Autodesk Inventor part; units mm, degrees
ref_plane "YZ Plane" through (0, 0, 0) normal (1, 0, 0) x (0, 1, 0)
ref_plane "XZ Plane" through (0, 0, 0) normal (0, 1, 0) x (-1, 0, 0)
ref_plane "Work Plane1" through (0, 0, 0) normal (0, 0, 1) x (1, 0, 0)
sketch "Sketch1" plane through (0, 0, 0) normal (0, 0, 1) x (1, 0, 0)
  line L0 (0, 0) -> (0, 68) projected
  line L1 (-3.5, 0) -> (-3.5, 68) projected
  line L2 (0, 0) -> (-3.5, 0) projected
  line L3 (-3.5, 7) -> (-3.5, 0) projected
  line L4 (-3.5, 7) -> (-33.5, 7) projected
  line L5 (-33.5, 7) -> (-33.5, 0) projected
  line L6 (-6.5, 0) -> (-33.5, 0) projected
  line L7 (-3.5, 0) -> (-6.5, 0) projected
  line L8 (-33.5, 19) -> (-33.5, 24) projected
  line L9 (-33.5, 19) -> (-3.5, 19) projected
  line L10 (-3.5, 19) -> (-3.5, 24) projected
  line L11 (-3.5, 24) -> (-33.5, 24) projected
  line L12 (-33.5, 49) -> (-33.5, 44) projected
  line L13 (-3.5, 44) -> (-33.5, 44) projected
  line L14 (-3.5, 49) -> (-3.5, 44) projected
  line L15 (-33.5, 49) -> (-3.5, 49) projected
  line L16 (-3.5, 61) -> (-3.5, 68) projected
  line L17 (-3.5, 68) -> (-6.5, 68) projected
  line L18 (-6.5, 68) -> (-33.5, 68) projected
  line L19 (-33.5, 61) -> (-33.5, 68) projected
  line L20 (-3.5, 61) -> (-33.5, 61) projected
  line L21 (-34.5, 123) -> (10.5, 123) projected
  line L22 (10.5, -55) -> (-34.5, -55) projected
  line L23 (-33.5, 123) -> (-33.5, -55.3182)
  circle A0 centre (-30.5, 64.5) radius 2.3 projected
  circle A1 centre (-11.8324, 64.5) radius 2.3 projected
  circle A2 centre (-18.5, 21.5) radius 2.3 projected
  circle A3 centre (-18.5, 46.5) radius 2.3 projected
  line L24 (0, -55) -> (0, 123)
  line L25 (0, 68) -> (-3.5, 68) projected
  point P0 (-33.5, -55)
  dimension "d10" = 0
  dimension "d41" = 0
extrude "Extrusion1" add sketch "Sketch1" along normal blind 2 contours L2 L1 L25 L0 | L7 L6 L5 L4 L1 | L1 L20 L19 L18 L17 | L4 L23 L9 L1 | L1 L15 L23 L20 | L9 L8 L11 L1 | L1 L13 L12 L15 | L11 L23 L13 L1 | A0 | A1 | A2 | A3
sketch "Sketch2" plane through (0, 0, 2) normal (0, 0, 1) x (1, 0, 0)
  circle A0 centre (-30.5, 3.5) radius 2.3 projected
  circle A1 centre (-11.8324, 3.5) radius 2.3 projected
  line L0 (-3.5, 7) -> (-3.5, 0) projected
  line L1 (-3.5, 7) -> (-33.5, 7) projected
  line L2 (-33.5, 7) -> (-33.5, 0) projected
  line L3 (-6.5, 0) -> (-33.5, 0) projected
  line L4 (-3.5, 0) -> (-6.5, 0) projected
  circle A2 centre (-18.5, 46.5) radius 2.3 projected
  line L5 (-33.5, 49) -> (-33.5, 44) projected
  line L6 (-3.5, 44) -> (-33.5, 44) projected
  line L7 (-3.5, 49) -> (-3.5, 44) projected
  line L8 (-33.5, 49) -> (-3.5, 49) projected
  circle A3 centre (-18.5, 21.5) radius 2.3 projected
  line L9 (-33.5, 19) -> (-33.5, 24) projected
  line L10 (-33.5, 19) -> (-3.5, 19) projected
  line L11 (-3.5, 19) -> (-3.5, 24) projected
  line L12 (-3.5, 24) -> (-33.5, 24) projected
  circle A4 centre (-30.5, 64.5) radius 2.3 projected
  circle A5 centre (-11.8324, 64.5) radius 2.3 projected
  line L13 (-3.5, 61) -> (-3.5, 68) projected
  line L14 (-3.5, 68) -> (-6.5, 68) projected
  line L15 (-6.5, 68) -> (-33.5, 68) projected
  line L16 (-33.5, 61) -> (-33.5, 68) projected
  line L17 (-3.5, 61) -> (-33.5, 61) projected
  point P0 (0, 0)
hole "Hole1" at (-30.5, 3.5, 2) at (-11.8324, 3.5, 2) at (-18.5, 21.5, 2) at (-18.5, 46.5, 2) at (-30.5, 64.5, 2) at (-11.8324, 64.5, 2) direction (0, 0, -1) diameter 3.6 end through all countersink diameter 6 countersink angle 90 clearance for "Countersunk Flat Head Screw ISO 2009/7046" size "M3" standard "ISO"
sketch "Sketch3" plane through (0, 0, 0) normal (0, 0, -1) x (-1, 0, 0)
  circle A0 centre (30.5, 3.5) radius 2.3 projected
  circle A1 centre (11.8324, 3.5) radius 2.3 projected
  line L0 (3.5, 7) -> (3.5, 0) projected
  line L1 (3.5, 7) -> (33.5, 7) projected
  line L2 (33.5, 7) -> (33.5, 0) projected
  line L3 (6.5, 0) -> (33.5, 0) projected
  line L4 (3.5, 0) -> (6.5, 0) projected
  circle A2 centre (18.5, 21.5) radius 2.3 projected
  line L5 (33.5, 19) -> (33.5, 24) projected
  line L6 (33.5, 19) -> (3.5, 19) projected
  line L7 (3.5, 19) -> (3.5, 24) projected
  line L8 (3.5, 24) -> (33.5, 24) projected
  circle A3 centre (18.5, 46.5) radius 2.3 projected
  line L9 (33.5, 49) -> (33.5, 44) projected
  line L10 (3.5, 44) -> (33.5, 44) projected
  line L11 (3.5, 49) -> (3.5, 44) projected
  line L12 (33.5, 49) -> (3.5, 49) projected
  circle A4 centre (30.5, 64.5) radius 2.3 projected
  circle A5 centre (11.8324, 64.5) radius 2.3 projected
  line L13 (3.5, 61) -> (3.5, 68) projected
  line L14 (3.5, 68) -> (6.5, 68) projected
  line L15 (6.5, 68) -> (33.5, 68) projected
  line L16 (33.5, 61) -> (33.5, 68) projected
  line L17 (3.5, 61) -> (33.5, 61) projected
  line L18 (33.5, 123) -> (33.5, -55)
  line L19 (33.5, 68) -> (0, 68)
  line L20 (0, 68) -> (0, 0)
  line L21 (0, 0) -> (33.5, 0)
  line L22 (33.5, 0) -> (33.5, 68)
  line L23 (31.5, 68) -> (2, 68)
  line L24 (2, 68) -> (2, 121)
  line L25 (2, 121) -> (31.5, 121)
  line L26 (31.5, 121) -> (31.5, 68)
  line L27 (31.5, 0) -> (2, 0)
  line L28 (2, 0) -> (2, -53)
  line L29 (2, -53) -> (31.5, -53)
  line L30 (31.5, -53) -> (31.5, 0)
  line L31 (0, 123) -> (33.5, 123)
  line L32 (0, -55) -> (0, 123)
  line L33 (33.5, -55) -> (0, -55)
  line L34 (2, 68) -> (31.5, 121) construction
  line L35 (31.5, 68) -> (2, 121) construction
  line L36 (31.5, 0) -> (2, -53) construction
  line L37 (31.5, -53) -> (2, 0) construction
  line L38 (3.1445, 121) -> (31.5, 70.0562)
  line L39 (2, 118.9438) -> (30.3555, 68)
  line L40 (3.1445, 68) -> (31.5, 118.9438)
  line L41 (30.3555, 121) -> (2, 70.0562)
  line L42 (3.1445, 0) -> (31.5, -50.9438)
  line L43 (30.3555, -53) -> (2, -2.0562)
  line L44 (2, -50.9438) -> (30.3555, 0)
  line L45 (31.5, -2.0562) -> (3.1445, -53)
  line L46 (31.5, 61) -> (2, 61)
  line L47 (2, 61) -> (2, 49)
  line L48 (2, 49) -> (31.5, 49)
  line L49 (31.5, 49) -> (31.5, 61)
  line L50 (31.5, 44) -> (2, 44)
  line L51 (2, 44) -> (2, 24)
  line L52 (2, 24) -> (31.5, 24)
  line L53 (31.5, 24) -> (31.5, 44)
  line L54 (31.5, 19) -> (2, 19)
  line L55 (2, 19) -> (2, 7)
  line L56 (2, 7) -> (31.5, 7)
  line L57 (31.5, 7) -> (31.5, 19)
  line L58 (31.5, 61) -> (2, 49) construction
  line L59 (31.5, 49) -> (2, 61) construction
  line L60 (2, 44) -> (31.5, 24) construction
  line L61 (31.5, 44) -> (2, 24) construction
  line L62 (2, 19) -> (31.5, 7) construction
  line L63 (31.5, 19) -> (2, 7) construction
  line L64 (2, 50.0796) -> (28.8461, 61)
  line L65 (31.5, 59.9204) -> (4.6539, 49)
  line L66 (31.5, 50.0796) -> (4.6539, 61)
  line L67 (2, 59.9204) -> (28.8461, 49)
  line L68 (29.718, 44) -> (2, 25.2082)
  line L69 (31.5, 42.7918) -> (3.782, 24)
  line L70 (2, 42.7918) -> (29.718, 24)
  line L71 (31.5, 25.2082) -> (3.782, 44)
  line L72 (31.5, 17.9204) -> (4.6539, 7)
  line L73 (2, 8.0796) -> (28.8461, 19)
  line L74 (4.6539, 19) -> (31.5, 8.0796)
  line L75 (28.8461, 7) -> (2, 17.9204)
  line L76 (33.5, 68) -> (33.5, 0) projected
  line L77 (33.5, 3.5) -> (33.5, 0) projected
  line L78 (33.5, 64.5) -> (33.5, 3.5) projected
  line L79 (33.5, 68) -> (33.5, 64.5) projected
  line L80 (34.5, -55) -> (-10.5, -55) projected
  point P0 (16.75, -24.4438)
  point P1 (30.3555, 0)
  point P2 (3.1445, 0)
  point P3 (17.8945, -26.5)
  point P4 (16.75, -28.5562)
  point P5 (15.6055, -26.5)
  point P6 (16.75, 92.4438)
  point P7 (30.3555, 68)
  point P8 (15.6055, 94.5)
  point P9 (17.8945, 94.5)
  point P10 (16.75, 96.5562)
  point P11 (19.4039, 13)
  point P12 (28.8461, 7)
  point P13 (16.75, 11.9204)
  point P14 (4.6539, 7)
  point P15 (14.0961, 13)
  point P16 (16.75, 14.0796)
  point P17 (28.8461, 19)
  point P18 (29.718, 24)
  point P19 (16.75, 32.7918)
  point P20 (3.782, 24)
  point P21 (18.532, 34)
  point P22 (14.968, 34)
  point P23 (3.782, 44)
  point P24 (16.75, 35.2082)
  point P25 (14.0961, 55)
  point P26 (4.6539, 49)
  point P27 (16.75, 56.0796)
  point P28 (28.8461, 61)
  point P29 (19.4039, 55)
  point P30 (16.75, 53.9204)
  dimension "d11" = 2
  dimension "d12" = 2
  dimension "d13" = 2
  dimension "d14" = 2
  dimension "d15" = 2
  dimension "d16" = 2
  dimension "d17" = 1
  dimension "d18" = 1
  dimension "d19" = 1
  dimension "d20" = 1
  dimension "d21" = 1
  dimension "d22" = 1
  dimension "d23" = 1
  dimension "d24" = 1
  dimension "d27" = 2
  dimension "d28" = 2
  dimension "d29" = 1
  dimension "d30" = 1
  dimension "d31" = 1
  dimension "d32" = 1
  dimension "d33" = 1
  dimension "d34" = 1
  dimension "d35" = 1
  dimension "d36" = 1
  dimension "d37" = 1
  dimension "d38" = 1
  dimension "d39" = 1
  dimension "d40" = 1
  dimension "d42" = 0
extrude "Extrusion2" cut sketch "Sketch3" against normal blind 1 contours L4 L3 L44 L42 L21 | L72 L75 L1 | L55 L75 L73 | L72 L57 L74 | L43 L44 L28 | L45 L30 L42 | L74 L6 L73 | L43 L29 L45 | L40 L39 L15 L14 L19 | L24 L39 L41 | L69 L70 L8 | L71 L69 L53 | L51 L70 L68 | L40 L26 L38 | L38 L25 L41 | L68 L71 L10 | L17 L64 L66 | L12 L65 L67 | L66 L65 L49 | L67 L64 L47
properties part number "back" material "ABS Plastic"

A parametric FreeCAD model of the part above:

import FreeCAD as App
import Part
import Sketcher

V = App.Vector
Q = App.Units.Quantity


def add_polygon(sketch, points):
    """Adds a closed chain of lines whose ends are joined by coincident constraints."""
    first, n = sketch.GeometryCount, len(points)
    for a, b in zip(points, points[1:] + points[:1]):
        sketch.addGeometry(Part.LineSegment(App.Vector(*a, 0), App.Vector(*b, 0)), False)
    for i in range(n):
        sketch.addConstraint(Sketcher.Constraint("Coincident", first + i, 2, first + (i + 1) % n, 1))

doc = App.newDocument("Part")
body = doc.addObject("PartDesign::Body", "Body")

sketch1 = doc.addObject("Sketcher::SketchObject", "Sketch")
body.addObject(sketch1)
sketch1.AttachmentSupport = (doc.XY_Plane, [""])
sketch1.MapMode = "FlatFace"
add_polygon(sketch1, [(0, 0), (0, 68), (-34, 68), (-34, 0)])
sketch1.addConstraint([
    Sketcher.Constraint("Vertical", 0),
    Sketcher.Constraint("Horizontal", 1),
    Sketcher.Constraint("Vertical", 2),
    Sketcher.Constraint("Horizontal", 3),
    Sketcher.Constraint("Coincident", 3, 2, -1, 1),
    Sketcher.Constraint("DistanceY", 0, 1, 0, 2, 68.0),
    Sketcher.Constraint("DistanceX", 1, 2, 1, 1, 33.5),
])
pad1 = doc.addObject("PartDesign::Pad", "Pad")
body.addObject(pad1)
pad1.Profile = sketch1
pad1.Length = 2

sketch2 = doc.addObject("Sketcher::SketchObject", "Sketch001")
body.addObject(sketch2)
sketch2.AttachmentSupport = (doc.XY_Plane, [""])
sketch2.MapMode = "FlatFace"
sketch2.AttachmentOffset = App.Placement(V(0, 0, 2), App.Rotation())
sketch2.addGeometry([
    Part.Circle(V(-30.5, 3.5, 0), V(0, 0, 1), 1.8),
    Part.Circle(V(-11.8, 3.5, 0), V(0, 0, 1), 1.8),
    Part.Circle(V(-18.5, 21.5, 0), V(0, 0, 1), 1.8),
    Part.Circle(V(-18.5, 46.5, 0), V(0, 0, 1), 1.8),
    Part.Circle(V(-30.5, 64.5, 0), V(0, 0, 1), 1.8),
    Part.Circle(V(-11.8, 64.5, 0), V(0, 0, 1), 1.8),
], False)
sketch2.addConstraint([
    Sketcher.Constraint("Equal", 0, 1),
    Sketcher.Constraint("Equal", 1, 2),
    Sketcher.Constraint("Equal", 2, 3),
    Sketcher.Constraint("Equal", 3, 4),
    Sketcher.Constraint("Equal", 4, 5),
    Sketcher.Constraint("Horizontal", 0, 3, 1, 3),
    Sketcher.Constraint("Horizontal", 4, 3, 5, 3),
    Sketcher.Constraint("Vertical", 2, 3, 3, 3),
    Sketcher.Constraint("Vertical", 0, 3, 4, 3),
    Sketcher.Constraint("Vertical", 1, 3, 5, 3),
    Sketcher.Constraint("Diameter", 0, 3.6),
    Sketcher.Constraint("DistanceY", 1, 3, 2, 3, 18.0),
    Sketcher.Constraint("DistanceX", 0, 3, 2, 3, 12.0),
    Sketcher.Constraint("DistanceY", 2, 3, 3, 3, 25.0),
    Sketcher.Constraint("DistanceY", 3, 3, 4, 3, 18.0),
    Sketcher.Constraint("DistanceX", 0, 3, -1, 1, 30.5),
    Sketcher.Constraint("DistanceY", -1, 1, 0, 3, 3.5),
    Sketcher.Constraint("DistanceX", 1, 3, -1, 1, 11.8324),
])
doc.recompute()
hole = doc.addObject("PartDesign::Hole", "Hole")
body.addObject(hole)
hole.Profile = sketch2
hole.ThreadType = "None"
hole.Diameter = 3.6
hole.DepthType = "ThroughAll"
hole.HoleCutType = "Countersink"
hole.HoleCutDiameter = 6
hole.HoleCutCountersinkAngle = 90

sketch3 = doc.addObject("Sketcher::SketchObject", "Sketch002")
body.addObject(sketch3)
sketch3.AttachmentSupport = (doc.XY_Plane, [""])
sketch3.MapMode = "FlatFace"
add_polygon(sketch3, [(-30, 0), (-3, 0), (-17, -24)])
add_polygon(sketch3, [(-17, 12), (-5, 7), (-29, 7)])
add_polygon(sketch3, [(-2, 18), (-2, 8), (-14, 13)])
add_polygon(sketch3, [(-32, 18), (-19, 13), (-32, 8)])
add_polygon(sketch3, [(-16, -26), (-2, -2), (-2, -51)])
add_polygon(sketch3, [(-32, -2), (-18, -26), (-32, -51)])
add_polygon(sketch3, [(-5, 19), (-17, 14), (-29, 19)])
add_polygon(sketch3, [(-30, -53), (-17, -29), (-3, -53)])
add_polygon(sketch3, [(-17, 92), (-3, 68), (-30, 68)])
add_polygon(sketch3, [(-2, 119), (-2, 70), (-16, 94)])
add_polygon(sketch3, [(-17, 33), (-4, 24), (-30, 24)])
add_polygon(sketch3, [(-19, 34), (-32, 25), (-32, 43)])
add_polygon(sketch3, [(-2, 43), (-2, 25), (-15, 34)])
add_polygon(sketch3, [(-32, 119), (-18, 94), (-32, 70)])
add_polygon(sketch3, [(-3, 121), (-17, 97), (-30, 121)])
add_polygon(sketch3, [(-17, 35), (-30, 44), (-4, 44)])
add_polygon(sketch3, [(-29, 61), (-5, 61), (-17, 56)])
add_polygon(sketch3, [(-5, 49), (-29, 49), (-17, 54)])
add_polygon(sketch3, [(-19, 55), (-32, 50), (-32, 60)])
add_polygon(sketch3, [(-14, 55), (-2, 60), (-2, 50)])
sketch3.addConstraint([
    Sketcher.Constraint("Horizontal", 0),
    Sketcher.Constraint("Horizontal", 4),
    Sketcher.Constraint("Vertical", 6),
    Sketcher.Constraint("Vertical", 11),
    Sketcher.Constraint("Vertical", 13),
    Sketcher.Constraint("Vertical", 17),
    Sketcher.Constraint("Horizontal", 20),
    Sketcher.Constraint("Horizontal", 23),
    Sketcher.Constraint("Horizontal", 25),
    Sketcher.Constraint("Vertical", 27),
    Sketcher.Constraint("Horizontal", 31),
    Sketcher.Constraint("Vertical", 34),
    Sketcher.Constraint("Vertical", 36),
    Sketcher.Constraint("Vertical", 41),
    Sketcher.Constraint("Horizontal", 44),
    Sketcher.Constraint("Horizontal", 46),
    Sketcher.Constraint("Horizontal", 48),
    Sketcher.Constraint("Horizontal", 51),
    Sketcher.Constraint("Vertical", 55),
    Sketcher.Constraint("Vertical", 58),
    Sketcher.Constraint("PointOnObject", 0, 2, -1),
    Sketcher.Constraint("Parallel", 3, 7),
    Sketcher.Constraint("Parallel", 5, 8),
    Sketcher.Constraint("Parallel", 7, 9),
    Sketcher.Constraint("Parallel", 8, 10),
    Sketcher.Constraint("Parallel", 1, 12),
    Sketcher.Constraint("Parallel", 2, 14),
    Sketcher.Constraint("Parallel", 14, 15),
    Sketcher.Constraint("Parallel", 12, 16),
    Sketcher.Constraint("Parallel", 10, 18),
    Sketcher.Constraint("Parallel", 9, 19),
    Sketcher.Constraint("Parallel", 16, 21),
    Sketcher.Constraint("Parallel", 15, 22),
    Sketcher.Constraint("Parallel", 22, 24),
    Sketcher.Constraint("Parallel", 21, 26),
    Sketcher.Constraint("Parallel", 24, 28),
    Sketcher.Constraint("Parallel", 26, 29),
    Sketcher.Constraint("Parallel", 32, 33),
    Sketcher.Constraint("Parallel", 30, 35),
    Sketcher.Constraint("Parallel", 35, 37),
    Sketcher.Constraint("Parallel", 33, 38),
    Sketcher.Constraint("Parallel", 28, 39),
    Sketcher.Constraint("Parallel", 29, 40),
    Sketcher.Constraint("Parallel", 40, 42),
    Sketcher.Constraint("Parallel", 39, 43),
    Sketcher.Constraint("Parallel", 37, 45),
    Sketcher.Constraint("Parallel", 38, 47),
    Sketcher.Constraint("Parallel", 18, 49),
    Sketcher.Constraint("Parallel", 19, 50),
    Sketcher.Constraint("Parallel", 49, 52),
    Sketcher.Constraint("Parallel", 50, 53),
    Sketcher.Constraint("Parallel", 52, 54),
    Sketcher.Constraint("Parallel", 53, 56),
    Sketcher.Constraint("Parallel", 54, 57),
    Sketcher.Constraint("Parallel", 56, 59),
    Sketcher.Constraint("Horizontal", 7, 2, 9, 2),
    Sketcher.Constraint("Horizontal", 6, 2, 10, 2),
    Sketcher.Constraint("Horizontal", 8, 2, 11, 2),
    Sketcher.Constraint("Horizontal", 14, 2, 15, 2),
    Sketcher.Constraint("Horizontal", 13, 2, 16, 2),
    Sketcher.Constraint("Horizontal", 12, 2, 17, 2),
    Sketcher.Constraint("Horizontal", 33, 2, 36, 2),
    Sketcher.Constraint("Horizontal", 35, 2, 37, 2),
    Sketcher.Constraint("Horizontal", 34, 2, 38, 2),
    Sketcher.Constraint("Horizontal", 28, 2, 39, 2),
    Sketcher.Constraint("Horizontal", 27, 2, 40, 2),
    Sketcher.Constraint("Horizontal", 55, 2, 57, 2),
    Sketcher.Constraint("Horizontal", 54, 2, 58, 2),
    Sketcher.Constraint("Vertical", 1, 2, 5, 2),
    Sketcher.Constraint("Vertical", 8, 2, 12, 2),
    Sketcher.Constraint("Vertical", 11, 2, 16, 2),
    Sketcher.Constraint("Vertical", 5, 2, 18, 2),
    Sketcher.Constraint("Vertical", 4, 2, 19, 2),
    Sketcher.Constraint("Vertical", 18, 2, 21, 2),
    Sketcher.Constraint("Vertical", 0, 2, 22, 2),
    Sketcher.Constraint("Vertical", 22, 2, 24, 2),
    Sketcher.Constraint("Vertical", 23, 2, 25, 2),
    Sketcher.Constraint("Vertical", 13, 2, 27, 2),
    Sketcher.Constraint("Vertical", 14, 2, 28, 2),
    Sketcher.Constraint("Vertical", 26, 2, 32, 2),
    Sketcher.Constraint("Vertical", 17, 2, 33, 2),
    Sketcher.Constraint("Vertical", 29, 2, 36, 2),
    Sketcher.Constraint("Vertical", 15, 2, 39, 2),
    Sketcher.Constraint("Vertical", 32, 2, 42, 2),
    Sketcher.Constraint("Vertical", 25, 2, 43, 2),
    Sketcher.Constraint("Vertical", 31, 2, 45, 2),
    Sketcher.Constraint("Vertical", 30, 2, 46, 2),
    Sketcher.Constraint("Vertical", 20, 2, 48, 2),
    Sketcher.Constraint("Vertical", 47, 2, 49, 2),
    Sketcher.Constraint("Vertical", 50, 2, 51, 2),
    Sketcher.Constraint("Vertical", 49, 2, 52, 2),
    Sketcher.Constraint("Vertical", 41, 2, 54, 2),
    Sketcher.Constraint("Vertical", 9, 2, 56, 2),
    Sketcher.Constraint("Vertical", 38, 2, 57, 2),
    Sketcher.Constraint("Equal", 5, 7),
    Sketcher.Constraint("Equal", 2, 12),
    Sketcher.Constraint("Equal", 32, 33),
    Sketcher.Constraint("DistanceX", 6, 2, -1, 1, 2.0),
    Sketcher.Constraint("DistanceY", -1, 1, 3, 2, 7.0),
    Sketcher.Constraint("DistanceY", -1, 1, 7, 2, 13.0),
    Sketcher.Constraint("DistanceY", -1, 1, 19, 2, 19.0),
    Sketcher.Constraint("DistanceY", 22, 2, -1, 1, 53.0),
    Sketcher.Constraint("DistanceY", -1, 1, 24, 2, 68.0),
    Sketcher.Constraint("DistanceY", -1, 1, 30, 2, 24.0),
    Sketcher.Constraint("DistanceY", -1, 1, 35, 2, 34.0),
    Sketcher.Constraint("DistanceY", -1, 1, 43, 2, 121.0),
    Sketcher.Constraint("DistanceY", -1, 1, 45, 2, 44.0),
    Sketcher.Constraint("DistanceY", -1, 1, 48, 2, 61.0),
    Sketcher.Constraint("DistanceY", -1, 1, 51, 2, 49.0),
    Sketcher.Constraint("DistanceY", -1, 1, 56, 2, 55.0),
    Sketcher.Constraint("Angle", 1, Q("-119.1005 deg")),
    Sketcher.Constraint("DistanceX", 10, 2, -1, 1, 31.5),
    Sketcher.Constraint("DistanceY", 14, 2, -1, 1, 26.5),
    Sketcher.Constraint("DistanceY", -1, 1, 28, 2, 94.5),
    Sketcher.Constraint("DistanceX", 0, 1, 0, 2, 27.211),
    Sketcher.Constraint("DistanceX", 31, 2, 31, 1, 25.936),
    Sketcher.Constraint("DistanceX", 1, 2, -1, 1, 16.75),
    Sketcher.Constraint("DistanceX", 4, 2, 4, 1, 24.1922),
    Sketcher.Constraint("DistanceY", 6, 2, 6, 1, 9.8408),
    Sketcher.Constraint("DistanceY", 34, 1, 34, 2, 17.5836),
])
pocket1 = doc.addObject("PartDesign::Pocket", "Pocket")
body.addObject(pocket1)
pocket1.Profile = sketch3
pocket1.Length = 1
pocket1.Reversed = True

doc.recompute()
